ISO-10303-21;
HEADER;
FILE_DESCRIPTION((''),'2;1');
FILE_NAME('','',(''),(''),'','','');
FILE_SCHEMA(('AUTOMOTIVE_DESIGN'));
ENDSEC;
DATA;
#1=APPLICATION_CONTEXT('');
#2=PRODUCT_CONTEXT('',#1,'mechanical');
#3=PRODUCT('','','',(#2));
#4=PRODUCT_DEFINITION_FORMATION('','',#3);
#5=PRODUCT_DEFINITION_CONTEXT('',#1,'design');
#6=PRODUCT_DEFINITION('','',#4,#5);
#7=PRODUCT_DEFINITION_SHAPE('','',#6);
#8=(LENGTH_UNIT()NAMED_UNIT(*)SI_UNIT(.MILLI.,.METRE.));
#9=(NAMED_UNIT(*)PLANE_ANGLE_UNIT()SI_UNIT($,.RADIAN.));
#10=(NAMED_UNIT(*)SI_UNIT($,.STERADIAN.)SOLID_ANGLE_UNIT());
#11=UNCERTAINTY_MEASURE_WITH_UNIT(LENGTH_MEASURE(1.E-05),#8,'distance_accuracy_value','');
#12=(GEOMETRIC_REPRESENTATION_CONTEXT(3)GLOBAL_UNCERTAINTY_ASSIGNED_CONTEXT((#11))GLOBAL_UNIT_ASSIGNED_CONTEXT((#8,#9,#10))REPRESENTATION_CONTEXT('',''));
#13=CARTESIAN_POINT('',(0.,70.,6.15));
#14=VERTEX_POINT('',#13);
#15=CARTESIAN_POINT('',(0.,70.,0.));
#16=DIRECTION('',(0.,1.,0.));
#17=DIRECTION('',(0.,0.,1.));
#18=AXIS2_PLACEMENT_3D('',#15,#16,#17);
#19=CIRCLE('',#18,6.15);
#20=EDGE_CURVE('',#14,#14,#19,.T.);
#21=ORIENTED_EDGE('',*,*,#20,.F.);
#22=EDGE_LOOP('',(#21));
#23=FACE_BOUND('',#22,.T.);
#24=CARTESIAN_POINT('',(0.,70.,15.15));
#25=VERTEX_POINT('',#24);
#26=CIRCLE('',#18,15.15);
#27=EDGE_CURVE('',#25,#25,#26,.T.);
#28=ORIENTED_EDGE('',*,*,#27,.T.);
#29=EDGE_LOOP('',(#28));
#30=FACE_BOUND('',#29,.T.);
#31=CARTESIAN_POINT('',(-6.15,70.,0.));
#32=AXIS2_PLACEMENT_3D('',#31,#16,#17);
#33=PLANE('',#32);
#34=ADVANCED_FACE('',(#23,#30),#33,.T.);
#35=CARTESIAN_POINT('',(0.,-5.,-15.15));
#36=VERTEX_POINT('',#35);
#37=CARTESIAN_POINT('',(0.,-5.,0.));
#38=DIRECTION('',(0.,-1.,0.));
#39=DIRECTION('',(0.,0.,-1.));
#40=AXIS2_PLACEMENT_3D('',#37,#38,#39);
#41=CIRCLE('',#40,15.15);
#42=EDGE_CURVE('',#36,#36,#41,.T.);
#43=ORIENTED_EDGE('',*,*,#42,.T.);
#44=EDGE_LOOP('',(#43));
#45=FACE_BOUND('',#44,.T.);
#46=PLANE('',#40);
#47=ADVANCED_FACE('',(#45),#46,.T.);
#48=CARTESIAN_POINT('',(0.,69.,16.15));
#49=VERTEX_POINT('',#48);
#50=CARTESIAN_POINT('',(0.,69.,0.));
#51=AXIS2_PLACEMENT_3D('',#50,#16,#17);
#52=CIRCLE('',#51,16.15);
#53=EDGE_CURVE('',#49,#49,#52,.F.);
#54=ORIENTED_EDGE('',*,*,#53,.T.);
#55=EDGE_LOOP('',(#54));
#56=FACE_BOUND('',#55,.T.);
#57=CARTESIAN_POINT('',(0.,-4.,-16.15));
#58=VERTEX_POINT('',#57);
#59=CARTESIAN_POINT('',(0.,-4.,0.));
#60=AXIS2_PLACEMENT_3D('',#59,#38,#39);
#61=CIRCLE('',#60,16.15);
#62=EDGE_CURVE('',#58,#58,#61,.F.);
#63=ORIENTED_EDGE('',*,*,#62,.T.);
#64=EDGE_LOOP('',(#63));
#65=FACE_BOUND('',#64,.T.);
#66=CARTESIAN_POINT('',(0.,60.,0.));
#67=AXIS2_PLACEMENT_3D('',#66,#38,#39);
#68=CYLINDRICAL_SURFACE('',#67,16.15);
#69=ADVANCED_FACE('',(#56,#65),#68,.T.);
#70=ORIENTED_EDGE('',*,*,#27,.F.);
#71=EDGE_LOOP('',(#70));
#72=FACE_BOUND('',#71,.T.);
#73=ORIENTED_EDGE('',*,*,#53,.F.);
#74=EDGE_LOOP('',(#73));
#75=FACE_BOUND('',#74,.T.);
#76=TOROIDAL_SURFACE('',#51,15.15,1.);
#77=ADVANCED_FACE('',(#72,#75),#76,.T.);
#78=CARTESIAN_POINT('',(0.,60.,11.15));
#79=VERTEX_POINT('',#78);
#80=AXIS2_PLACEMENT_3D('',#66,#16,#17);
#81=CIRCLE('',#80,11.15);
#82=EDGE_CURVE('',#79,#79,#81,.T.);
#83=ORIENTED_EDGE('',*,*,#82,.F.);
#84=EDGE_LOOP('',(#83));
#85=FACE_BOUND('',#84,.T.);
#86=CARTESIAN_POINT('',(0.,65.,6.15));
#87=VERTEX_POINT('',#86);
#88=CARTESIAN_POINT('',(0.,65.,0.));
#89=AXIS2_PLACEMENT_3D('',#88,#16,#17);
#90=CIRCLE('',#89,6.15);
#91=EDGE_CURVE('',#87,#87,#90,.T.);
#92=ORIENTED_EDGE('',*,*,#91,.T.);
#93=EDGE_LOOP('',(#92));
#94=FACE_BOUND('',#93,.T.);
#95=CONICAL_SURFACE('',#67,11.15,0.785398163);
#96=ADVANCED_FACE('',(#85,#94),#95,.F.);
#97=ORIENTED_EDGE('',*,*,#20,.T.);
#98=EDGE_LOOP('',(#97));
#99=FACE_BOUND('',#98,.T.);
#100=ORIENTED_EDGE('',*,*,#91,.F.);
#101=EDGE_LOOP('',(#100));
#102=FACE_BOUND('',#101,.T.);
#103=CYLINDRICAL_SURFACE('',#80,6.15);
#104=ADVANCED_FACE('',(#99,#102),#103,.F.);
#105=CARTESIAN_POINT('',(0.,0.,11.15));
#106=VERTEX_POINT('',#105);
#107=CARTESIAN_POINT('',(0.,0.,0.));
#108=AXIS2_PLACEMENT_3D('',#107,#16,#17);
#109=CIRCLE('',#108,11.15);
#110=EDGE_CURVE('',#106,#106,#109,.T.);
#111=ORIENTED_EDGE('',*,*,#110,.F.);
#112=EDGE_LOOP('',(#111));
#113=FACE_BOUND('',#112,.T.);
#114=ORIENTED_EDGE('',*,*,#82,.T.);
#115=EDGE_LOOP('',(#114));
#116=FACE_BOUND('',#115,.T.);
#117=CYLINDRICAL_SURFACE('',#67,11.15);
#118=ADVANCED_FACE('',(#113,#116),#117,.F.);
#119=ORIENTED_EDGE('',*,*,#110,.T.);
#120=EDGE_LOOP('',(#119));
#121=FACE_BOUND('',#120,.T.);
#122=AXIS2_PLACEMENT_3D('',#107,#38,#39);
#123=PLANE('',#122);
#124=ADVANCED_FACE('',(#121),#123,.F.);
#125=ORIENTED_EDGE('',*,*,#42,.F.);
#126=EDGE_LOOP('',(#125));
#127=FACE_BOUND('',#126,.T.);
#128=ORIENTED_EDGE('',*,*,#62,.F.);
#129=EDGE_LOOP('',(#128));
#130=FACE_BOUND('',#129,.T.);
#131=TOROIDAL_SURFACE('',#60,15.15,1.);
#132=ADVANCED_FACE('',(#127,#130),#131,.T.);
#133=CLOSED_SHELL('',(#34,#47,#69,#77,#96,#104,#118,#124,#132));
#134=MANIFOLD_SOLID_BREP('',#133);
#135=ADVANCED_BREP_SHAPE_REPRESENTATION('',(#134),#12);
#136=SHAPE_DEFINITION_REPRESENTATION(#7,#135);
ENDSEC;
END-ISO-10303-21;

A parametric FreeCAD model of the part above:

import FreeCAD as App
import Part
import Sketcher


def edges_at(feature, points):
    """Names of the edges that pass closest to the given points."""
    edges = feature.Shape.Edges
    near = lambda p: min(range(len(edges)), key=lambda i: edges[i].distToShape(Part.Vertex(*p))[0])
    return sorted({f"Edge{near(p) + 1}" for p in points})

doc = App.newDocument("Part")
body = doc.addObject("PartDesign::Body", "Body")

# Sketch on XZ plane
sketch1 = body.newObject("Sketcher::SketchObject", "Sketch")
sketch1.AttachmentSupport = (doc.getObject("XZ_Plane"), [""])
sketch1.MapMode = "FlatFace"
sketch1.addGeometry(Part.Circle(App.Vector(0, 0, 0), App.Vector(0, 0, 1), 16), False)
sketch1.addGeometry(Part.Circle(App.Vector(0, 0, 0), App.Vector(0, 0, 1), 11), False)
sketch1.addConstraint(Sketcher.Constraint("Coincident", 0, 3, -1, 1))
sketch1.addConstraint(Sketcher.Constraint("Coincident", 1, 3, -1, 1))
sketch1.addConstraint(Sketcher.Constraint("Diameter", 0, 32.3))
sketch1.addConstraint(Sketcher.Constraint("Diameter", 1, 22.3))
pad1 = body.newObject("PartDesign::Pad", "Pad")
pad1.Profile = sketch1
pad1.Length = 60
pad1.Reversed = True

# Sketch on XZ plane
sketch2 = body.newObject("Sketcher::SketchObject", "Sketch001")
sketch2.AttachmentSupport = (doc.getObject("XZ_Plane"), [""])
sketch2.MapMode = "FlatFace"
sketch2.AttachmentOffset = App.Placement(App.Vector(0, 0, 5), App.Rotation())
sketch2.addGeometry(Part.Circle(App.Vector(0, 0, 0), App.Vector(0, 0, 1), 16), False)
sketch2.addConstraint(Sketcher.Constraint("Coincident", 0, 3, -1, 1))
sketch2.addConstraint(Sketcher.Constraint("Diameter", 0, 32.3))
pad2 = body.newObject("PartDesign::Pad", "Pad001")
pad2.Profile = sketch2
pad2.Length = 5
pad2.Reversed = True

# Sketch on XY plane
sketch3 = body.newObject("Sketcher::SketchObject", "Sketch002")
sketch3.AttachmentSupport = (doc.getObject("XY_Plane"), [""])
sketch3.MapMode = "FlatFace"
sketch3.addGeometry(Part.LineSegment(App.Vector(-11.2, 60, 0), App.Vector(-6.2, 65, 0)), False)
sketch3.addGeometry(Part.LineSegment(App.Vector(-6.2, 65, 0), App.Vector(-6.2, 70, 0)), False)
sketch3.addGeometry(Part.LineSegment(App.Vector(-6.2, 70, 0), App.Vector(-16.1, 70, 0)), False)
sketch3.addGeometry(Part.LineSegment(App.Vector(-16.1, 70, 0), App.Vector(-16.1, 60, 0)), False)
sketch3.addGeometry(Part.LineSegment(App.Vector(-16.1, 60, 0), App.Vector(-11.2, 60, 0)), False)
sketch3.addConstraint(Sketcher.Constraint("Coincident", 0, 2, 1, 1))
sketch3.addConstraint(Sketcher.Constraint("Coincident", 1, 2, 2, 1))
sketch3.addConstraint(Sketcher.Constraint("Coincident", 2, 2, 3, 1))
sketch3.addConstraint(Sketcher.Constraint("Coincident", 3, 2, 4, 1))
sketch3.addConstraint(Sketcher.Constraint("Coincident", 4, 2, 0, 1))
sketch3.addConstraint(Sketcher.Constraint("Vertical", 1))
sketch3.addConstraint(Sketcher.Constraint("Horizontal", 2))
sketch3.addConstraint(Sketcher.Constraint("Vertical", 3))
sketch3.addConstraint(Sketcher.Constraint("Horizontal", 4))
sketch3.addConstraint(Sketcher.Constraint("Equal", 4, 1))
sketch3.addConstraint(Sketcher.Constraint("Equal", 2, 3))
sketch3.addConstraint(Sketcher.Constraint("DistanceX", 2, 2, 2, 1, 10.0))
sketch3.addConstraint(Sketcher.Constraint("DistanceX", 4, 1, 4, 2, 5.0))
sketch3.addConstraint(Sketcher.Constraint("DistanceY", -1, 1, 0, 2, 65.0))
sketch3.addConstraint(Sketcher.Constraint("DistanceX", 0, 2, -1, 1, 6.15))
revolution = body.newObject("PartDesign::Revolution", "Revolution")
revolution.Profile = sketch3
revolution.ReferenceAxis = (sketch3, ["V_Axis"])
revolution.Angle = 360
doc.recompute()

fillet = body.newObject("PartDesign::Fillet", "Fillet")
fillet.Base = (revolution, edges_at(revolution, [(0, 70, -16.15), (0, -5, 16.15)]))
fillet.Radius = 1

doc.recompute()
